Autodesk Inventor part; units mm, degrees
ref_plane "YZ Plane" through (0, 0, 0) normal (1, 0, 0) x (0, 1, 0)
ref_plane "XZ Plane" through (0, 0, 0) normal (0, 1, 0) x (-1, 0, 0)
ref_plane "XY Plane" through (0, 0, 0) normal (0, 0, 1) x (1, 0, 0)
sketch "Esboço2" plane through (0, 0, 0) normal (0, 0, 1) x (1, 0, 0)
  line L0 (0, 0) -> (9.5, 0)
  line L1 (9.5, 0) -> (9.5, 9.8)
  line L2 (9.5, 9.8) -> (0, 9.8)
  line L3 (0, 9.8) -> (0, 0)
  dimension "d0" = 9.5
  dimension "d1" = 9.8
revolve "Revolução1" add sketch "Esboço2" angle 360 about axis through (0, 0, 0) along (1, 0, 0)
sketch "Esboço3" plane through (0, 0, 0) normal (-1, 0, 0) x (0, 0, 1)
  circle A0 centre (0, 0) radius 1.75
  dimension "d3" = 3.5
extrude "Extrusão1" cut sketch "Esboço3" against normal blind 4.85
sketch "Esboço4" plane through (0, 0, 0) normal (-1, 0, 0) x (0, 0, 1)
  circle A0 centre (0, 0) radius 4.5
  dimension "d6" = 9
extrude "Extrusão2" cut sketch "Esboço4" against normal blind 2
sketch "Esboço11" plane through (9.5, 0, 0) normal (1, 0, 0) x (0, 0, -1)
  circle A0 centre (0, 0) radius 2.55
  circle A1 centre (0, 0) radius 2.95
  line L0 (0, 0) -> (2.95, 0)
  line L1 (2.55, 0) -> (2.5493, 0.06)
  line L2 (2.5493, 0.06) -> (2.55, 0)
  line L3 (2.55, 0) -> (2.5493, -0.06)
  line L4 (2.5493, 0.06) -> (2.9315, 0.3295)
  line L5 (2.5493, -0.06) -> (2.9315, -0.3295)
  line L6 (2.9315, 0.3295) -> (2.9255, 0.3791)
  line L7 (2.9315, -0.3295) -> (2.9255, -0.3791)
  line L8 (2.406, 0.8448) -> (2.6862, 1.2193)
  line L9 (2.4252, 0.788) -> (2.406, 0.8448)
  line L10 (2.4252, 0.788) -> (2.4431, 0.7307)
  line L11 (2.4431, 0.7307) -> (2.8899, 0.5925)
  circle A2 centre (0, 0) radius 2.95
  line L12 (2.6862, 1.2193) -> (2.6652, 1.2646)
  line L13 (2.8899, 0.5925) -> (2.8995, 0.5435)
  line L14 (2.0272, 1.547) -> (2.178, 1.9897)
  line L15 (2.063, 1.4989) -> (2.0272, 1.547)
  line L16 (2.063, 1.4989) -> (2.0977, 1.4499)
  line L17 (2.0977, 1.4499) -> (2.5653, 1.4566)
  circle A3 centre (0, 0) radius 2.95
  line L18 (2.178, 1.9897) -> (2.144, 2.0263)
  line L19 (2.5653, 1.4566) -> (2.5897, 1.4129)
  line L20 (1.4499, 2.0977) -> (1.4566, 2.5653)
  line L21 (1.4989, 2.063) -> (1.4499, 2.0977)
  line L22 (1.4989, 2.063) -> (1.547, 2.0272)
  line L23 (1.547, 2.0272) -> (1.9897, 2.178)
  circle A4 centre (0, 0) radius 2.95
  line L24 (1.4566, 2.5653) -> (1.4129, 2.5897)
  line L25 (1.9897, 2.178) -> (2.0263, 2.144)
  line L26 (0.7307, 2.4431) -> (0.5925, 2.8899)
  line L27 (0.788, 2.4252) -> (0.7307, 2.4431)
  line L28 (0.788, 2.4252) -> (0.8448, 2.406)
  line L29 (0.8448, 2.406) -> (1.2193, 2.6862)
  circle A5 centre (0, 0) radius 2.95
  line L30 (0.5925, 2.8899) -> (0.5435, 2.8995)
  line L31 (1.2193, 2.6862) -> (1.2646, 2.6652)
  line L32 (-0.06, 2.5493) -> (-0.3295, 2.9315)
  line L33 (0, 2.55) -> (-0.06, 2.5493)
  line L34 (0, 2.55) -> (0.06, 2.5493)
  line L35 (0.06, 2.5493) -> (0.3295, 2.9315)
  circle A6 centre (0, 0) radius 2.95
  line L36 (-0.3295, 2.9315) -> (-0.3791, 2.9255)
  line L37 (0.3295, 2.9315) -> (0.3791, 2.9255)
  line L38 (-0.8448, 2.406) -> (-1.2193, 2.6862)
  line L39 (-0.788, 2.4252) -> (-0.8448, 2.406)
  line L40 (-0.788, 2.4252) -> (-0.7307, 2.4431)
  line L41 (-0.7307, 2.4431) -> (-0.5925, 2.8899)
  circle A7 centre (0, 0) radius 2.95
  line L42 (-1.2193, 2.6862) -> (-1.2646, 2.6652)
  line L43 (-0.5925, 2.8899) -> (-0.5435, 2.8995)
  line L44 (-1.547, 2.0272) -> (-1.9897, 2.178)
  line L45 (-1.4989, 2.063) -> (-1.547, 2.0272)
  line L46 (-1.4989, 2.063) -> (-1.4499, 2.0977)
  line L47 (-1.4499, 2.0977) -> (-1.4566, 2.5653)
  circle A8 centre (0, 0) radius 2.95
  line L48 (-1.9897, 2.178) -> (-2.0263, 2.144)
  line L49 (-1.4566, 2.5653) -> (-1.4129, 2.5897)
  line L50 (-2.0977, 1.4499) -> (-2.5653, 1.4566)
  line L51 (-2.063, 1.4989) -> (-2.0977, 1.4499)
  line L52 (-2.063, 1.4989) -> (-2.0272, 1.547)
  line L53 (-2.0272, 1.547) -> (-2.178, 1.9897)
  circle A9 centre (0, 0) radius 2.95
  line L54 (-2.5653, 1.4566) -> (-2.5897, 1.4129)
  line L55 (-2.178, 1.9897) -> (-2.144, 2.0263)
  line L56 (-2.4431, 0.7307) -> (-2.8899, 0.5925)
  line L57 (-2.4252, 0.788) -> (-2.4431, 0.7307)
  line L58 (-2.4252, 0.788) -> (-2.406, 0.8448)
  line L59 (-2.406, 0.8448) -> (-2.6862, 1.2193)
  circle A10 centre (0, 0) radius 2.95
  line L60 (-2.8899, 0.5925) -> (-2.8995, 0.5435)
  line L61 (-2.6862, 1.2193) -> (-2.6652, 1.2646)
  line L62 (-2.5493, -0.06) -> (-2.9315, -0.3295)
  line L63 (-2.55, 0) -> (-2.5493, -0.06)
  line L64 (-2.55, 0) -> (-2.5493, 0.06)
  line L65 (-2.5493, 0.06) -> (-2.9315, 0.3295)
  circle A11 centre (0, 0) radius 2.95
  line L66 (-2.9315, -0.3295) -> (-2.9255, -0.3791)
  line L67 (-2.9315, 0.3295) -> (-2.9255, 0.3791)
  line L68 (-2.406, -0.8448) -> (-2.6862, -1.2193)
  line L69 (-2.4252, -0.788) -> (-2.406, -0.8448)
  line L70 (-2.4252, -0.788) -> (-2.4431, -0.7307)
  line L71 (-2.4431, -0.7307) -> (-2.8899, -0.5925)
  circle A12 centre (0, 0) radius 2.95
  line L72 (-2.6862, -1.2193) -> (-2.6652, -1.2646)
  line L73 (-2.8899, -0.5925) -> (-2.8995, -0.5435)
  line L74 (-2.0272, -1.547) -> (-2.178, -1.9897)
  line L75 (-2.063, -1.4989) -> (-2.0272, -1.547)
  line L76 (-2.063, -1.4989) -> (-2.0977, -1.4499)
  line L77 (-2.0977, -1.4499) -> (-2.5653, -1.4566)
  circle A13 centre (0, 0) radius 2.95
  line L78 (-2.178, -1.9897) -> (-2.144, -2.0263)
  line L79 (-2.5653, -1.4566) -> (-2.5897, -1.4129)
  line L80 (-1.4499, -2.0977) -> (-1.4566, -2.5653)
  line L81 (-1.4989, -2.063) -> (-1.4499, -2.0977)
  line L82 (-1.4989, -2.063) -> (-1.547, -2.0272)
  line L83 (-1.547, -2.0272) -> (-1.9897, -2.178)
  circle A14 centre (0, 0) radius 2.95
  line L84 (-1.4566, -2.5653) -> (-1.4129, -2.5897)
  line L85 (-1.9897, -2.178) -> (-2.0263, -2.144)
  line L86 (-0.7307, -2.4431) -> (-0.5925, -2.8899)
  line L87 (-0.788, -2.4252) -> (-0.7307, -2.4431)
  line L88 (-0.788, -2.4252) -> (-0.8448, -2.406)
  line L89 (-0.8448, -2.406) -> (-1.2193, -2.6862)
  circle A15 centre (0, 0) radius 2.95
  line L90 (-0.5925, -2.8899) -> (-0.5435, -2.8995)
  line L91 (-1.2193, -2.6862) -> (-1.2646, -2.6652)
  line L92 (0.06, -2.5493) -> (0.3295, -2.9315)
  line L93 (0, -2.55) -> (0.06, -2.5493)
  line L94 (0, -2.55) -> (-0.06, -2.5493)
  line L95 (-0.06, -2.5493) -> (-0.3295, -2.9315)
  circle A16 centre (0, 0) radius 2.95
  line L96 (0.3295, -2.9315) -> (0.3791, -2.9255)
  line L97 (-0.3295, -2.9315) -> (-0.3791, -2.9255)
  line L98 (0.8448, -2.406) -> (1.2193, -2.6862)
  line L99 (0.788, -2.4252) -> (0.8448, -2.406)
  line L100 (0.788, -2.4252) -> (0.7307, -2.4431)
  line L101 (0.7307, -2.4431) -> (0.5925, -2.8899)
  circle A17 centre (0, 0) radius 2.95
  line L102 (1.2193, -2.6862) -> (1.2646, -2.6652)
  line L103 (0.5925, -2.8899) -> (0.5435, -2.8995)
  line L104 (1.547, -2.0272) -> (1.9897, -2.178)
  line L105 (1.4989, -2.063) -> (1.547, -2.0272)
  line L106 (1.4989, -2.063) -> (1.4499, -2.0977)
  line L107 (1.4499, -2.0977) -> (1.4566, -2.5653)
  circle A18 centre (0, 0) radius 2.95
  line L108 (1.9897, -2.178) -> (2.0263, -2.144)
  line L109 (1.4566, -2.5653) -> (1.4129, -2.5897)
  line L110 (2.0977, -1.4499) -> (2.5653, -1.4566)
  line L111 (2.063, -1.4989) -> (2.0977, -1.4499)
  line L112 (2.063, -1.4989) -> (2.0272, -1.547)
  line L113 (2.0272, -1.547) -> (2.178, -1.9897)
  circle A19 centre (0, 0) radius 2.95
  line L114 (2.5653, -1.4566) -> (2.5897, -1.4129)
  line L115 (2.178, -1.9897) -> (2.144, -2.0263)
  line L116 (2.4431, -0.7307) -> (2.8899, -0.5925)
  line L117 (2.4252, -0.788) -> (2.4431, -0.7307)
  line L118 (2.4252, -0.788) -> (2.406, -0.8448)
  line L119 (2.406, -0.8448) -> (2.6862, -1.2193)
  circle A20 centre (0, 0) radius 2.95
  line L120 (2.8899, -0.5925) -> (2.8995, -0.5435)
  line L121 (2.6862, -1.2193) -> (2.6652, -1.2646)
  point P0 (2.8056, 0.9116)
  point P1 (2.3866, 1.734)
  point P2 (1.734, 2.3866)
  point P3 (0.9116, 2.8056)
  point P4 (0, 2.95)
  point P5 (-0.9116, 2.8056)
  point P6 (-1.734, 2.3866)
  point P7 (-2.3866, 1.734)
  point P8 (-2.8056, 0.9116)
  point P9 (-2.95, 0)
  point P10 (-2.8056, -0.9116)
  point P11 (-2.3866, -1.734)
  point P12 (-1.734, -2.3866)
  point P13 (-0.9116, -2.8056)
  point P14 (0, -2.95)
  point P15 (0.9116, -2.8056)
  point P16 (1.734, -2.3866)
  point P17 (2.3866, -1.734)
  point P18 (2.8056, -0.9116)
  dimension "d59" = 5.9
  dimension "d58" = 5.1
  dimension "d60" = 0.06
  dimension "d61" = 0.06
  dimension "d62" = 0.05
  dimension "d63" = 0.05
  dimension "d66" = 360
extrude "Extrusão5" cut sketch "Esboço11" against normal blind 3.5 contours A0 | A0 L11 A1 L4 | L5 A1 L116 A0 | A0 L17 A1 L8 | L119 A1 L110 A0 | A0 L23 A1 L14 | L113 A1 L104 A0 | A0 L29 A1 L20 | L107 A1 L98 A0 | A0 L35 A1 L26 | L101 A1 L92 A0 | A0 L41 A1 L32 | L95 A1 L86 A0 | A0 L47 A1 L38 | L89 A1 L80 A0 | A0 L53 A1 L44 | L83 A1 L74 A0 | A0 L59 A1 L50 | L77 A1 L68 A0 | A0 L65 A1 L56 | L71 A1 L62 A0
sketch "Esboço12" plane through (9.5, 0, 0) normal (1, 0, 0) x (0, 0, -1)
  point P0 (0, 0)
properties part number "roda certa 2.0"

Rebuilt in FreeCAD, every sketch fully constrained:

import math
import FreeCAD as App
import Part
import Sketcher

V = App.Vector
Q = App.Units.Quantity


def add_polygon(sketch, points):
    """Adds a closed chain of lines whose ends are joined by coincident constraints."""
    first, n = sketch.GeometryCount, len(points)
    for a, b in zip(points, points[1:] + points[:1]):
        sketch.addGeometry(Part.LineSegment(App.Vector(*a, 0), App.Vector(*b, 0)), False)
    for i in range(n):
        sketch.addConstraint(Sketcher.Constraint("Coincident", first + i, 2, first + (i + 1) % n, 1))

doc = App.newDocument("Part")
body = doc.addObject("PartDesign::Body", "Body")

# Sketch on XY plane
sketch1 = body.newObject("Sketcher::SketchObject", "Sketch")
sketch1.AttachmentSupport = (doc.getObject("XY_Plane"), [""])
sketch1.MapMode = "FlatFace"
add_polygon(sketch1, [(0, 9.8), (0, 0), (9.5, 0), (9.5, 9.8)])  # lines 0-3
sketch1.addConstraint(Sketcher.Constraint("Vertical", 0))
sketch1.addConstraint(Sketcher.Constraint("Horizontal", 1))
sketch1.addConstraint(Sketcher.Constraint("Vertical", 2))
sketch1.addConstraint(Sketcher.Constraint("Horizontal", 3))
sketch1.addConstraint(Sketcher.Constraint("Coincident", 0, 2, -1, 1))
sketch1.addConstraint(Sketcher.Constraint("DistanceX", 1, 1, 1, 2, 9.5))
sketch1.addConstraint(Sketcher.Constraint("DistanceY", 0, 2, 0, 1, 9.8))
revolution = body.newObject("PartDesign::Revolution", "Revolution")
revolution.Profile = sketch1
revolution.ReferenceAxis = (sketch1, ["H_Axis"])
revolution.Angle = 360

# Sketch on YZ plane
sketch2 = body.newObject("Sketcher::SketchObject", "Sketch001")
sketch2.AttachmentSupport = (doc.getObject("YZ_Plane"), [""])
sketch2.MapMode = "FlatFace"
sketch2.addGeometry(Part.Circle(V(0, 0, 0), V(0, 0, 1), 1.75), False)
sketch2.addConstraint(Sketcher.Constraint("Coincident", 0, 3, -1, 1))
sketch2.addConstraint(Sketcher.Constraint("Diameter", 0, 3.5))
pocket1 = body.newObject("PartDesign::Pocket", "Pocket")
pocket1.Profile = sketch2
pocket1.Length = 4.85
pocket1.Reversed = True

# Sketch on YZ plane
sketch3 = body.newObject("Sketcher::SketchObject", "Sketch002")
sketch3.AttachmentSupport = (doc.getObject("YZ_Plane"), [""])
sketch3.MapMode = "FlatFace"
sketch3.addGeometry(Part.Circle(V(0, 0, 0), V(0, 0, 1), 4.5), False)
sketch3.addConstraint(Sketcher.Constraint("Coincident", 0, 3, -1, 1))
sketch3.addConstraint(Sketcher.Constraint("Diameter", 0, 9.0))
pocket2 = body.newObject("PartDesign::Pocket", "Pocket001")
pocket2.Profile = sketch3
pocket2.Length = 2
pocket2.Reversed = True

# Sketch on YZ plane
sketch4 = body.newObject("Sketcher::SketchObject", "Sketch003")
sketch4.AttachmentSupport = (doc.getObject("YZ_Plane"), [""])
sketch4.MapMode = "FlatFace"
sketch4.AttachmentOffset = App.Placement(V(0, 0, 9.5), App.Rotation())
sketch4.addGeometry(Part.ArcOfCircle(Part.Circle(V(0, 0, 0), V(0, 0, 1), 2.55), math.radians(-91.348257), math.radians(-88.651743)), False)
sketch4.addGeometry(Part.LineSegment(V(0.06, -2.5493, 0), V(0.3295, -2.9315, 0)), False)
sketch4.addGeometry(Part.ArcOfCircle(Part.Circle(V(0, 0, 0), V(0, 0, 1), 2.95), math.radians(-83.586883), math.radians(-78.413532)), False)
sketch4.addGeometry(Part.LineSegment(V(0.5925, -2.8899, 0), V(0.7307, -2.4431, 0)), False)
sketch4.addGeometry(Part.ArcOfCircle(Part.Circle(V(0, 0, 0), V(0, 0, 1), 2.55), math.radians(-73.348748), math.radians(-70.652694)), False)
sketch4.addGeometry(Part.LineSegment(V(0.8448, -2.406, 0), V(1.2193, -2.6862, 0)), False)
sketch4.addGeometry(Part.ArcOfCircle(Part.Circle(V(0, 0, 0), V(0, 0, 1), 2.95), math.radians(-65.586104), math.radians(-60.411707)), False)
sketch4.addGeometry(Part.LineSegment(V(1.4566, -2.5653, 0), V(1.4499, -2.0977, 0)), False)
sketch4.addGeometry(Part.ArcOfCircle(Part.Circle(V(0, 0, 0), V(0, 0, 1), 2.55), math.radians(-55.348331), math.radians(-52.651967)), False)
sketch4.addGeometry(Part.LineSegment(V(1.547, -2.0272, 0), V(1.9897, -2.178, 0)), False)
sketch4.addGeometry(Part.ArcOfCircle(Part.Circle(V(0, 0, 0), V(0, 0, 1), 2.95), math.radians(-47.58691), math.radians(-42.41309)), False)
sketch4.addGeometry(Part.LineSegment(V(2.178, -1.9897, 0), V(2.0272, -1.547, 0)), False)
sketch4.addGeometry(Part.ArcOfCircle(Part.Circle(V(0, 0, 0), V(0, 0, 1), 2.55), math.radians(-37.348033), math.radians(-34.651669)), False)
sketch4.addGeometry(Part.LineSegment(V(2.0977, -1.4499, 0), V(2.5653, -1.4566, 0)), False)
sketch4.addGeometry(Part.ArcOfCircle(Part.Circle(V(0, 0, 0), V(0, 0, 1), 2.95), math.radians(-29.588293), math.radians(-24.413896)), False)
sketch4.addGeometry(Part.LineSegment(V(2.6862, -1.2193, 0), V(2.406, -0.8448, 0)), False)
sketch4.addGeometry(Part.ArcOfCircle(Part.Circle(V(0, 0, 0), V(0, 0, 1), 2.55), math.radians(-19.347306), math.radians(-16.651252)), False)
sketch4.addGeometry(Part.LineSegment(V(2.4431, -0.7307, 0), V(2.8899, -0.5925, 0)), False)
sketch4.addGeometry(Part.ArcOfCircle(Part.Circle(V(0, 0, 0), V(0, 0, 1), 2.95), math.radians(-11.586468), math.radians(-6.413117)), False)
sketch4.addGeometry(Part.LineSegment(V(2.9315, -0.3295, 0), V(2.5493, -0.06, 0)), False)
sketch4.addGeometry(Part.ArcOfCircle(Part.Circle(V(0, 0, 0), V(0, 0, 1), 2.55), math.radians(-1.348257), math.radians(1.348257)), False)
sketch4.addGeometry(Part.LineSegment(V(2.5493, 0.06, 0), V(2.9315, 0.3295, 0)), False)
sketch4.addGeometry(Part.ArcOfCircle(Part.Circle(V(0, 0, 0), V(0, 0, 1), 2.95), math.radians(6.413117), math.radians(11.586468)), False)
sketch4.addGeometry(Part.LineSegment(V(2.8899, 0.5925, 0), V(2.4431, 0.7307, 0)), False)
sketch4.addGeometry(Part.ArcOfCircle(Part.Circle(V(0, 0, 0), V(0, 0, 1), 2.55), math.radians(16.651252), math.radians(19.347306)), False)
sketch4.addGeometry(Part.LineSegment(V(2.406, 0.8448, 0), V(2.6862, 1.2193, 0)), False)
sketch4.addGeometry(Part.ArcOfCircle(Part.Circle(V(0, 0, 0), V(0, 0, 1), 2.95), math.radians(24.413896), math.radians(29.588293)), False)
sketch4.addGeometry(Part.LineSegment(V(2.5653, 1.4566, 0), V(2.0977, 1.4499, 0)), False)
sketch4.addGeometry(Part.ArcOfCircle(Part.Circle(V(0, 0, 0), V(0, 0, 1), 2.55), math.radians(34.651669), math.radians(37.348033)), False)
sketch4.addGeometry(Part.LineSegment(V(2.0272, 1.547, 0), V(2.178, 1.9897, 0)), False)
sketch4.addGeometry(Part.ArcOfCircle(Part.Circle(V(0, 0, 0), V(0, 0, 1), 2.95), math.radians(42.41309), math.radians(47.58691)), False)
sketch4.addGeometry(Part.LineSegment(V(1.9897, 2.178, 0), V(1.547, 2.0272, 0)), False)
sketch4.addGeometry(Part.ArcOfCircle(Part.Circle(V(0, 0, 0), V(0, 0, 1), 2.55), math.radians(52.651967), math.radians(55.348331)), False)
sketch4.addGeometry(Part.LineSegment(V(1.4499, 2.0977, 0), V(1.4566, 2.5653, 0)), False)
sketch4.addGeometry(Part.ArcOfCircle(Part.Circle(V(0, 0, 0), V(0, 0, 1), 2.95), math.radians(60.411707), math.radians(65.586104)), False)
sketch4.addGeometry(Part.LineSegment(V(1.2193, 2.6862, 0), V(0.8448, 2.406, 0)), False)
sketch4.addGeometry(Part.ArcOfCircle(Part.Circle(V(0, 0, 0), V(0, 0, 1), 2.55), math.radians(70.652694), math.radians(73.348748)), False)
sketch4.addGeometry(Part.LineSegment(V(0.7307, 2.4431, 0), V(0.5925, 2.8899, 0)), False)
sketch4.addGeometry(Part.ArcOfCircle(Part.Circle(V(0, 0, 0), V(0, 0, 1), 2.95), math.radians(78.413532), math.radians(83.586883)), False)
sketch4.addGeometry(Part.LineSegment(V(0.3295, 2.9315, 0), V(0.06, 2.5493, 0)), False)
sketch4.addGeometry(Part.ArcOfCircle(Part.Circle(V(0, 0, 0), V(0, 0, 1), 2.55), math.radians(88.651743), math.radians(91.348257)), False)
sketch4.addGeometry(Part.LineSegment(V(-0.06, 2.5493, 0), V(-0.3295, 2.9315, 0)), False)
sketch4.addGeometry(Part.ArcOfCircle(Part.Circle(V(0, 0, 0), V(0, 0, 1), 2.95), math.radians(96.413117), math.radians(101.586468)), False)
sketch4.addGeometry(Part.LineSegment(V(-0.5925, 2.8899, 0), V(-0.7307, 2.4431, 0)), False)
sketch4.addGeometry(Part.ArcOfCircle(Part.Circle(V(0, 0, 0), V(0, 0, 1), 2.55), math.radians(106.651252), math.radians(109.347306)), False)
sketch4.addGeometry(Part.LineSegment(V(-0.8448, 2.406, 0), V(-1.2193, 2.6862, 0)), False)
sketch4.addGeometry(Part.ArcOfCircle(Part.Circle(V(0, 0, 0), V(0, 0, 1), 2.95), math.radians(114.413896), math.radians(119.588293)), False)
sketch4.addGeometry(Part.LineSegment(V(-1.4566, 2.5653, 0), V(-1.4499, 2.0977, 0)), False)
sketch4.addGeometry(Part.ArcOfCircle(Part.Circle(V(0, 0, 0), V(0, 0, 1), 2.55), math.radians(124.651669), math.radians(127.348033)), False)
sketch4.addGeometry(Part.LineSegment(V(-1.547, 2.0272, 0), V(-1.9897, 2.178, 0)), False)
sketch4.addGeometry(Part.ArcOfCircle(Part.Circle(V(0, 0, 0), V(0, 0, 1), 2.95), math.radians(132.41309), math.radians(137.58691)), False)
sketch4.addGeometry(Part.LineSegment(V(-2.178, 1.9897, 0), V(-2.0272, 1.547, 0)), False)
sketch4.addGeometry(Part.ArcOfCircle(Part.Circle(V(0, 0, 0), V(0, 0, 1), 2.55), math.radians(142.651967), math.radians(145.348331)), False)
sketch4.addGeometry(Part.LineSegment(V(-2.0977, 1.4499, 0), V(-2.5653, 1.4566, 0)), False)
sketch4.addGeometry(Part.ArcOfCircle(Part.Circle(V(0, 0, 0), V(0, 0, 1), 2.95), math.radians(150.411707), math.radians(155.586104)), False)
sketch4.addGeometry(Part.LineSegment(V(-2.6862, 1.2193, 0), V(-2.406, 0.8448, 0)), False)
sketch4.addGeometry(Part.ArcOfCircle(Part.Circle(V(0, 0, 0), V(0, 0, 1), 2.55), math.radians(160.652694), math.radians(163.348748)), False)
sketch4.addGeometry(Part.LineSegment(V(-2.4431, 0.7307, 0), V(-2.8899, 0.5925, 0)), False)
sketch4.addGeometry(Part.ArcOfCircle(Part.Circle(V(0, 0, 0), V(0, 0, 1), 2.95), math.radians(168.413532), math.radians(173.586883)), False)
sketch4.addGeometry(Part.LineSegment(V(-2.9315, 0.3295, 0), V(-2.5493, 0.06, 0)), False)
sketch4.addGeometry(Part.ArcOfCircle(Part.Circle(V(0, 0, 0), V(0, 0, 1), 2.55), math.radians(178.651743), math.radians(181.348257)), False)
sketch4.addGeometry(Part.LineSegment(V(-2.5493, -0.06, 0), V(-2.9315, -0.3295, 0)), False)
sketch4.addGeometry(Part.ArcOfCircle(Part.Circle(V(0, 0, 0), V(0, 0, 1), 2.95), math.radians(-173.586883), math.radians(-168.413532)), False)
sketch4.addGeometry(Part.LineSegment(V(-2.8899, -0.5925, 0), V(-2.4431, -0.7307, 0)), False)
sketch4.addGeometry(Part.ArcOfCircle(Part.Circle(V(0, 0, 0), V(0, 0, 1), 2.55), math.radians(-163.348748), math.radians(-160.652694)), False)
sketch4.addGeometry(Part.LineSegment(V(-2.406, -0.8448, 0), V(-2.6862, -1.2193, 0)), False)
sketch4.addGeometry(Part.ArcOfCircle(Part.Circle(V(0, 0, 0), V(0, 0, 1), 2.95), math.radians(-155.586104), math.radians(-150.411707)), False)
sketch4.addGeometry(Part.LineSegment(V(-2.5653, -1.4566, 0), V(-2.0977, -1.4499, 0)), False)
sketch4.addGeometry(Part.ArcOfCircle(Part.Circle(V(0, 0, 0), V(0, 0, 1), 2.55), math.radians(-145.348331), math.radians(-142.651967)), False)
sketch4.addGeometry(Part.LineSegment(V(-2.0272, -1.547, 0), V(-2.178, -1.9897, 0)), False)
sketch4.addGeometry(Part.ArcOfCircle(Part.Circle(V(0, 0, 0), V(0, 0, 1), 2.95), math.radians(-137.58691), math.radians(-132.41309)), False)
sketch4.addGeometry(Part.LineSegment(V(-1.9897, -2.178, 0), V(-1.547, -2.0272, 0)), False)
sketch4.addGeometry(Part.ArcOfCircle(Part.Circle(V(0, 0, 0), V(0, 0, 1), 2.55), math.radians(-127.348033), math.radians(-124.651669)), False)
sketch4.addGeometry(Part.LineSegment(V(-1.4499, -2.0977, 0), V(-1.4566, -2.5653, 0)), False)
sketch4.addGeometry(Part.ArcOfCircle(Part.Circle(V(0, 0, 0), V(0, 0, 1), 2.95), math.radians(-119.588293), math.radians(-114.413896)), False)
sketch4.addGeometry(Part.LineSegment(V(-1.2193, -2.6862, 0), V(-0.8448, -2.406, 0)), False)
sketch4.addGeometry(Part.ArcOfCircle(Part.Circle(V(0, 0, 0), V(0, 0, 1), 2.55), math.radians(-109.347306), math.radians(-106.651252)), False)
sketch4.addGeometry(Part.LineSegment(V(-0.7307, -2.4431, 0), V(-0.5925, -2.8899, 0)), False)
sketch4.addGeometry(Part.ArcOfCircle(Part.Circle(V(0, 0, 0), V(0, 0, 1), 2.95), math.radians(-101.586468), math.radians(-96.413117)), False)
sketch4.addGeometry(Part.LineSegment(V(-0.3295, -2.9315, 0), V(-0.06, -2.5493, 0)), False)
sketch4.addConstraint(Sketcher.Constraint("Coincident", 0, 2, 1, 1))
sketch4.addConstraint(Sketcher.Constraint("Coincident", 1, 2, 2, 1))
sketch4.addConstraint(Sketcher.Constraint("Coincident", 2, 2, 3, 1))
sketch4.addConstraint(Sketcher.Constraint("Coincident", 3, 2, 4, 1))
sketch4.addConstraint(Sketcher.Constraint("Coincident", 4, 2, 5, 1))
sketch4.addConstraint(Sketcher.Constraint("Coincident", 5, 2, 6, 1))
sketch4.addConstraint(Sketcher.Constraint("Coincident", 6, 2, 7, 1))
sketch4.addConstraint(Sketcher.Constraint("Coincident", 7, 2, 8, 1))
sketch4.addConstraint(Sketcher.Constraint("Coincident", 8, 2, 9, 1))
sketch4.addConstraint(Sketcher.Constraint("Coincident", 9, 2, 10, 1))
sketch4.addConstraint(Sketcher.Constraint("Coincident", 10, 2, 11, 1))
sketch4.addConstraint(Sketcher.Constraint("Coincident", 11, 2, 12, 1))
sketch4.addConstraint(Sketcher.Constraint("Coincident", 12, 2, 13, 1))
sketch4.addConstraint(Sketcher.Constraint("Coincident", 13, 2, 14, 1))
sketch4.addConstraint(Sketcher.Constraint("Coincident", 14, 2, 15, 1))
sketch4.addConstraint(Sketcher.Constraint("Coincident", 15, 2, 16, 1))
sketch4.addConstraint(Sketcher.Constraint("Coincident", 16, 2, 17, 1))
sketch4.addConstraint(Sketcher.Constraint("Coincident", 17, 2, 18, 1))
sketch4.addConstraint(Sketcher.Constraint("Coincident", 18, 2, 19, 1))
sketch4.addConstraint(Sketcher.Constraint("Coincident", 19, 2, 20, 1))
sketch4.addConstraint(Sketcher.Constraint("Coincident", 20, 2, 21, 1))
sketch4.addConstraint(Sketcher.Constraint("Coincident", 21, 2, 22, 1))
sketch4.addConstraint(Sketcher.Constraint("Coincident", 22, 2, 23, 1))
sketch4.addConstraint(Sketcher.Constraint("Coincident", 23, 2, 24, 1))
sketch4.addConstraint(Sketcher.Constraint("Coincident", 24, 2, 25, 1))
sketch4.addConstraint(Sketcher.Constraint("Coincident", 25, 2, 26, 1))
sketch4.addConstraint(Sketcher.Constraint("Coincident", 26, 2, 27, 1))
sketch4.addConstraint(Sketcher.Constraint("Coincident", 27, 2, 28, 1))
sketch4.addConstraint(Sketcher.Constraint("Coincident", 28, 2, 29, 1))
sketch4.addConstraint(Sketcher.Constraint("Coincident", 29, 2, 30, 1))
sketch4.addConstraint(Sketcher.Constraint("Coincident", 30, 2, 31, 1))
sketch4.addConstraint(Sketcher.Constraint("Coincident", 31, 2, 32, 1))
sketch4.addConstraint(Sketcher.Constraint("Coincident", 32, 2, 33, 1))
sketch4.addConstraint(Sketcher.Constraint("Coincident", 33, 2, 34, 1))
sketch4.addConstraint(Sketcher.Constraint("Coincident", 34, 2, 35, 1))
sketch4.addConstraint(Sketcher.Constraint("Coincident", 35, 2, 36, 1))
sketch4.addConstraint(Sketcher.Constraint("Coincident", 36, 2, 37, 1))
sketch4.addConstraint(Sketcher.Constraint("Coincident", 37, 2, 38, 1))
sketch4.addConstraint(Sketcher.Constraint("Coincident", 38, 2, 39, 1))
sketch4.addConstraint(Sketcher.Constraint("Coincident", 39, 2, 40, 1))
sketch4.addConstraint(Sketcher.Constraint("Coincident", 40, 2, 41, 1))
sketch4.addConstraint(Sketcher.Constraint("Coincident", 41, 2, 42, 1))
sketch4.addConstraint(Sketcher.Constraint("Coincident", 42, 2, 43, 1))
sketch4.addConstraint(Sketcher.Constraint("Coincident", 43, 2, 44, 1))
sketch4.addConstraint(Sketcher.Constraint("Coincident", 44, 2, 45, 1))
sketch4.addConstraint(Sketcher.Constraint("Coincident", 45, 2, 46, 1))
sketch4.addConstraint(Sketcher.Constraint("Coincident", 46, 2, 47, 1))
sketch4.addConstraint(Sketcher.Constraint("Coincident", 47, 2, 48, 1))
sketch4.addConstraint(Sketcher.Constraint("Coincident", 48, 2, 49, 1))
sketch4.addConstraint(Sketcher.Constraint("Coincident", 49, 2, 50, 1))
sketch4.addConstraint(Sketcher.Constraint("Coincident", 50, 2, 51, 1))
sketch4.addConstraint(Sketcher.Constraint("Coincident", 51, 2, 52, 1))
sketch4.addConstraint(Sketcher.Constraint("Coincident", 52, 2, 53, 1))
sketch4.addConstraint(Sketcher.Constraint("Coincident", 53, 2, 54, 1))
sketch4.addConstraint(Sketcher.Constraint("Coincident", 54, 2, 55, 1))
sketch4.addConstraint(Sketcher.Constraint("Coincident", 55, 2, 56, 1))
sketch4.addConstraint(Sketcher.Constraint("Coincident", 56, 2, 57, 1))
sketch4.addConstraint(Sketcher.Constraint("Coincident", 57, 2, 58, 1))
sketch4.addConstraint(Sketcher.Constraint("Coincident", 58, 2, 59, 1))
sketch4.addConstraint(Sketcher.Constraint("Coincident", 59, 2, 60, 1))
sketch4.addConstraint(Sketcher.Constraint("Coincident", 60, 2, 61, 1))
sketch4.addConstraint(Sketcher.Constraint("Coincident", 61, 2, 62, 1))
sketch4.addConstraint(Sketcher.Constraint("Coincident", 62, 2, 63, 1))
sketch4.addConstraint(Sketcher.Constraint("Coincident", 63, 2, 64, 1))
sketch4.addConstraint(Sketcher.Constraint("Coincident", 64, 2, 65, 1))
sketch4.addConstraint(Sketcher.Constraint("Coincident", 65, 2, 66, 1))
sketch4.addConstraint(Sketcher.Constraint("Coincident", 66, 2, 67, 1))
sketch4.addConstraint(Sketcher.Constraint("Coincident", 67, 2, 68, 1))
sketch4.addConstraint(Sketcher.Constraint("Coincident", 68, 2, 69, 1))
sketch4.addConstraint(Sketcher.Constraint("Coincident", 69, 2, 70, 1))
sketch4.addConstraint(Sketcher.Constraint("Coincident", 70, 2, 71, 1))
sketch4.addConstraint(Sketcher.Constraint("Coincident", 71, 2, 72, 1))
sketch4.addConstraint(Sketcher.Constraint("Coincident", 72, 2, 73, 1))
sketch4.addConstraint(Sketcher.Constraint("Coincident", 73, 2, 74, 1))
sketch4.addConstraint(Sketcher.Constraint("Coincident", 74, 2, 75, 1))
sketch4.addConstraint(Sketcher.Constraint("Coincident", 75, 2, 76, 1))
sketch4.addConstraint(Sketcher.Constraint("Coincident", 76, 2, 77, 1))
sketch4.addConstraint(Sketcher.Constraint("Coincident", 77, 2, 78, 1))
sketch4.addConstraint(Sketcher.Constraint("Coincident", 78, 2, 79, 1))
sketch4.addConstraint(Sketcher.Constraint("Coincident", 79, 2, 0, 1))
sketch4.addConstraint(Sketcher.Constraint("Coincident", 0, 3, -1, 1))
sketch4.addConstraint(Sketcher.Constraint("Coincident", 2, 3, -1, 1))
sketch4.addConstraint(Sketcher.Constraint("Coincident", 4, 3, -1, 1))
sketch4.addConstraint(Sketcher.Constraint("Coincident", 6, 3, -1, 1))
sketch4.addConstraint(Sketcher.Constraint("Coincident", 8, 3, -1, 1))
sketch4.addConstraint(Sketcher.Constraint("Coincident", 10, 3, -1, 1))
sketch4.addConstraint(Sketcher.Constraint("Coincident", 12, 3, -1, 1))
sketch4.addConstraint(Sketcher.Constraint("Coincident", 14, 3, -1, 1))
sketch4.addConstraint(Sketcher.Constraint("Coincident", 16, 3, -1, 1))
sketch4.addConstraint(Sketcher.Constraint("Coincident", 18, 3, -1, 1))
sketch4.addConstraint(Sketcher.Constraint("Coincident", 20, 3, -1, 1))
sketch4.addConstraint(Sketcher.Constraint("Coincident", 22, 3, -1, 1))
sketch4.addConstraint(Sketcher.Constraint("Coincident", 24, 3, -1, 1))
sketch4.addConstraint(Sketcher.Constraint("Coincident", 26, 3, -1, 1))
sketch4.addConstraint(Sketcher.Constraint("Coincident", 28, 3, -1, 1))
sketch4.addConstraint(Sketcher.Constraint("Coincident", 30, 3, -1, 1))
sketch4.addConstraint(Sketcher.Constraint("Coincident", 32, 3, -1, 1))
sketch4.addConstraint(Sketcher.Constraint("Coincident", 34, 3, -1, 1))
sketch4.addConstraint(Sketcher.Constraint("Coincident", 36, 3, -1, 1))
sketch4.addConstraint(Sketcher.Constraint("Coincident", 38, 3, -1, 1))
sketch4.addConstraint(Sketcher.Constraint("Coincident", 40, 3, -1, 1))
sketch4.addConstraint(Sketcher.Constraint("Coincident", 42, 3, -1, 1))
sketch4.addConstraint(Sketcher.Constraint("Coincident", 44, 3, -1, 1))
sketch4.addConstraint(Sketcher.Constraint("Coincident", 46, 3, -1, 1))
sketch4.addConstraint(Sketcher.Constraint("Coincident", 48, 3, -1, 1))
sketch4.addConstraint(Sketcher.Constraint("Coincident", 50, 3, -1, 1))
sketch4.addConstraint(Sketcher.Constraint("Coincident", 52, 3, -1, 1))
sketch4.addConstraint(Sketcher.Constraint("Coincident", 54, 3, -1, 1))
sketch4.addConstraint(Sketcher.Constraint("Coincident", 56, 3, -1, 1))
sketch4.addConstraint(Sketcher.Constraint("Coincident", 58, 3, -1, 1))
sketch4.addConstraint(Sketcher.Constraint("Coincident", 60, 3, -1, 1))
sketch4.addConstraint(Sketcher.Constraint("Coincident", 62, 3, -1, 1))
sketch4.addConstraint(Sketcher.Constraint("Coincident", 64, 3, -1, 1))
sketch4.addConstraint(Sketcher.Constraint("Coincident", 66, 3, -1, 1))
sketch4.addConstraint(Sketcher.Constraint("Coincident", 68, 3, -1, 1))
sketch4.addConstraint(Sketcher.Constraint("Coincident", 70, 3, -1, 1))
sketch4.addConstraint(Sketcher.Constraint("Coincident", 72, 3, -1, 1))
sketch4.addConstraint(Sketcher.Constraint("Coincident", 74, 3, -1, 1))
sketch4.addConstraint(Sketcher.Constraint("Coincident", 76, 3, -1, 1))
sketch4.addConstraint(Sketcher.Constraint("Coincident", 78, 3, -1, 1))
sketch4.addConstraint(Sketcher.Constraint("Equal", 0, 4))
sketch4.addConstraint(Sketcher.Constraint("Equal", 2, 6))
sketch4.addConstraint(Sketcher.Constraint("Equal", 4, 8))
sketch4.addConstraint(Sketcher.Constraint("Equal", 6, 10))
sketch4.addConstraint(Sketcher.Constraint("Equal", 8, 12))
sketch4.addConstraint(Sketcher.Constraint("Equal", 10, 14))
sketch4.addConstraint(Sketcher.Constraint("Equal", 12, 16))
sketch4.addConstraint(Sketcher.Constraint("Equal", 14, 18))
sketch4.addConstraint(Sketcher.Constraint("Equal", 16, 20))
sketch4.addConstraint(Sketcher.Constraint("Equal", 18, 22))
sketch4.addConstraint(Sketcher.Constraint("Equal", 20, 24))
sketch4.addConstraint(Sketcher.Constraint("Equal", 22, 26))
sketch4.addConstraint(Sketcher.Constraint("Equal", 24, 28))
sketch4.addConstraint(Sketcher.Constraint("Equal", 26, 30))
sketch4.addConstraint(Sketcher.Constraint("Equal", 28, 32))
sketch4.addConstraint(Sketcher.Constraint("Equal", 30, 34))
sketch4.addConstraint(Sketcher.Constraint("Equal", 32, 36))
sketch4.addConstraint(Sketcher.Constraint("Equal", 34, 38))
sketch4.addConstraint(Sketcher.Constraint("Equal", 36, 40))
sketch4.addConstraint(Sketcher.Constraint("Equal", 38, 42))
sketch4.addConstraint(Sketcher.Constraint("Equal", 40, 44))
sketch4.addConstraint(Sketcher.Constraint("Equal", 42, 46))
sketch4.addConstraint(Sketcher.Constraint("Equal", 44, 48))
sketch4.addConstraint(Sketcher.Constraint("Equal", 46, 50))
sketch4.addConstraint(Sketcher.Constraint("Equal", 48, 52))
sketch4.addConstraint(Sketcher.Constraint("Equal", 50, 54))
sketch4.addConstraint(Sketcher.Constraint("Equal", 52, 56))
sketch4.addConstraint(Sketcher.Constraint("Equal", 54, 58))
sketch4.addConstraint(Sketcher.Constraint("Equal", 56, 60))
sketch4.addConstraint(Sketcher.Constraint("Equal", 58, 62))
sketch4.addConstraint(Sketcher.Constraint("Equal", 60, 64))
sketch4.addConstraint(Sketcher.Constraint("Equal", 62, 66))
sketch4.addConstraint(Sketcher.Constraint("Equal", 64, 68))
sketch4.addConstraint(Sketcher.Constraint("Equal", 66, 70))
sketch4.addConstraint(Sketcher.Constraint("Equal", 68, 72))
sketch4.addConstraint(Sketcher.Constraint("Equal", 70, 74))
sketch4.addConstraint(Sketcher.Constraint("Equal", 72, 76))
sketch4.addConstraint(Sketcher.Constraint("Equal", 74, 78))
sketch4.addConstraint(Sketcher.Constraint("Perpendicular", 1, 21))
sketch4.addConstraint(Sketcher.Constraint("Perpendicular", 3, 23))
sketch4.addConstraint(Sketcher.Constraint("Perpendicular", 5, 25))
sketch4.addConstraint(Sketcher.Constraint("Perpendicular", 7, 27))
sketch4.addConstraint(Sketcher.Constraint("Perpendicular", 9, 29))
sketch4.addConstraint(Sketcher.Constraint("Perpendicular", 11, 31))
sketch4.addConstraint(Sketcher.Constraint("Perpendicular", 13, 33))
sketch4.addConstraint(Sketcher.Constraint("Perpendicular", 15, 35))
sketch4.addConstraint(Sketcher.Constraint("Perpendicular", 17, 37))
sketch4.addConstraint(Sketcher.Constraint("Perpendicular", 19, 39))
sketch4.addConstraint(Sketcher.Constraint("Perpendicular", 21, 41))
sketch4.addConstraint(Sketcher.Constraint("Perpendicular", 23, 43))
sketch4.addConstraint(Sketcher.Constraint("Perpendicular", 25, 45))
sketch4.addConstraint(Sketcher.Constraint("Perpendicular", 27, 47))
sketch4.addConstraint(Sketcher.Constraint("Perpendicular", 29, 49))
sketch4.addConstraint(Sketcher.Constraint("Perpendicular", 31, 51))
sketch4.addConstraint(Sketcher.Constraint("Perpendicular", 33, 53))
sketch4.addConstraint(Sketcher.Constraint("Perpendicular", 35, 55))
sketch4.addConstraint(Sketcher.Constraint("Perpendicular", 37, 57))
sketch4.addConstraint(Sketcher.Constraint("Perpendicular", 39, 59))
sketch4.addConstraint(Sketcher.Constraint("Perpendicular", 41, 61))
sketch4.addConstraint(Sketcher.Constraint("Perpendicular", 43, 63))
sketch4.addConstraint(Sketcher.Constraint("Perpendicular", 45, 65))
sketch4.addConstraint(Sketcher.Constraint("Perpendicular", 47, 67))
sketch4.addConstraint(Sketcher.Constraint("Perpendicular", 49, 69))
sketch4.addConstraint(Sketcher.Constraint("Perpendicular", 51, 71))
sketch4.addConstraint(Sketcher.Constraint("Perpendicular", 53, 73))
sketch4.addConstraint(Sketcher.Constraint("Perpendicular", 55, 75))
sketch4.addConstraint(Sketcher.Constraint("Perpendicular", 57, 77))
sketch4.addConstraint(Sketcher.Constraint("Perpendicular", 59, 79))
sketch4.addConstraint(Sketcher.Constraint("Horizontal", 39, 2, 40, 2))
sketch4.addConstraint(Sketcher.Constraint("Horizontal", 38, 2, 41, 2))
sketch4.addConstraint(Sketcher.Constraint("Horizontal", 37, 2, 42, 2))
sketch4.addConstraint(Sketcher.Constraint("Horizontal", 36, 2, 43, 2))
sketch4.addConstraint(Sketcher.Constraint("Horizontal", 35, 2, 44, 2))
sketch4.addConstraint(Sketcher.Constraint("Horizontal", 34, 2, 45, 2))
sketch4.addConstraint(Sketcher.Constraint("Horizontal", 33, 2, 46, 2))
sketch4.addConstraint(Sketcher.Constraint("Horizontal", 32, 2, 47, 2))
sketch4.addConstraint(Sketcher.Constraint("Horizontal", 31, 2, 48, 2))
sketch4.addConstraint(Sketcher.Constraint("Horizontal", 30, 2, 49, 2))
sketch4.addConstraint(Sketcher.Constraint("Horizontal", 29, 2, 50, 2))
sketch4.addConstraint(Sketcher.Constraint("Horizontal", 27, 2, 52, 2))
sketch4.addConstraint(Sketcher.Constraint("Horizontal", 25, 2, 54, 2))
sketch4.addConstraint(Sketcher.Constraint("Horizontal", 23, 2, 56, 2))
sketch4.addConstraint(Sketcher.Constraint("Horizontal", 21, 2, 58, 2))
sketch4.addConstraint(Sketcher.Constraint("Horizontal", 19, 2, 60, 2))
sketch4.addConstraint(Sketcher.Constraint("Horizontal", 17, 2, 62, 2))
sketch4.addConstraint(Sketcher.Constraint("Horizontal", 15, 2, 64, 2))
sketch4.addConstraint(Sketcher.Constraint("Horizontal", 13, 2, 66, 2))
sketch4.addConstraint(Sketcher.Constraint("Horizontal", 11, 2, 68, 2))
sketch4.addConstraint(Sketcher.Constraint("Horizontal", 9, 2, 70, 2))
sketch4.addConstraint(Sketcher.Constraint("Horizontal", 7, 2, 72, 2))
sketch4.addConstraint(Sketcher.Constraint("Horizontal", 5, 2, 74, 2))
sketch4.addConstraint(Sketcher.Constraint("Horizontal", 3, 2, 76, 2))
sketch4.addConstraint(Sketcher.Constraint("Horizontal", 1, 2, 78, 2))
sketch4.addConstraint(Sketcher.Constraint("Vertical", 19, 2, 20, 2))
sketch4.addConstraint(Sketcher.Constraint("Vertical", 17, 2, 22, 2))
sketch4.addConstraint(Sketcher.Constraint("Vertical", 15, 2, 24, 2))
sketch4.addConstraint(Sketcher.Constraint("Vertical", 13, 2, 26, 2))
sketch4.addConstraint(Sketcher.Constraint("Vertical", 11, 2, 28, 2))
sketch4.addConstraint(Sketcher.Constraint("Vertical", 9, 2, 30, 2))
sketch4.addConstraint(Sketcher.Constraint("Vertical", 7, 2, 32, 2))
sketch4.addConstraint(Sketcher.Constraint("Vertical", 5, 2, 34, 2))
sketch4.addConstraint(Sketcher.Constraint("Vertical", 3, 2, 36, 2))
sketch4.addConstraint(Sketcher.Constraint("Vertical", 1, 2, 38, 2))
sketch4.addConstraint(Sketcher.Constraint("Equal", 1, 3))
sketch4.addConstraint(Sketcher.Constraint("Equal", 3, 5))
sketch4.addConstraint(Sketcher.Constraint("Equal", 5, 7))
sketch4.addConstraint(Sketcher.Constraint("Equal", 7, 9))
sketch4.addConstraint(Sketcher.Constraint("Equal", 9, 11))
sketch4.addConstraint(Sketcher.Constraint("Equal", 11, 13))
sketch4.addConstraint(Sketcher.Constraint("Equal", 13, 15))
sketch4.addConstraint(Sketcher.Constraint("Equal", 15, 17))
sketch4.addConstraint(Sketcher.Constraint("Equal", 17, 19))
sketch4.addConstraint(Sketcher.Constraint("Radius", 0, 2.55))
sketch4.addConstraint(Sketcher.Constraint("Radius", 2, 2.95))
sketch4.addConstraint(Sketcher.Constraint("DistanceX", -1, 1, 0, 2, 0.06))
sketch4.addConstraint(Sketcher.Constraint("Angle", 7, Q("90.821 deg")))
sketch4.addConstraint(Sketcher.Constraint("Angle", 9, Q("-18.8107 deg")))
sketch4.addConstraint(Sketcher.Constraint("DistanceY", 2, 2, -1, 1, 2.89))
sketch4.addConstraint(Sketcher.Constraint("DistanceX", -1, 1, 7, 2, 1.45))
sketch4.addConstraint(Sketcher.Constraint("DistanceY", 4, 2, -1, 1, 2.406))
pocket3 = body.newObject("PartDesign::Pocket", "Pocket002")
pocket3.Profile = sketch4
pocket3.Length = 3.5

doc.recompute()
